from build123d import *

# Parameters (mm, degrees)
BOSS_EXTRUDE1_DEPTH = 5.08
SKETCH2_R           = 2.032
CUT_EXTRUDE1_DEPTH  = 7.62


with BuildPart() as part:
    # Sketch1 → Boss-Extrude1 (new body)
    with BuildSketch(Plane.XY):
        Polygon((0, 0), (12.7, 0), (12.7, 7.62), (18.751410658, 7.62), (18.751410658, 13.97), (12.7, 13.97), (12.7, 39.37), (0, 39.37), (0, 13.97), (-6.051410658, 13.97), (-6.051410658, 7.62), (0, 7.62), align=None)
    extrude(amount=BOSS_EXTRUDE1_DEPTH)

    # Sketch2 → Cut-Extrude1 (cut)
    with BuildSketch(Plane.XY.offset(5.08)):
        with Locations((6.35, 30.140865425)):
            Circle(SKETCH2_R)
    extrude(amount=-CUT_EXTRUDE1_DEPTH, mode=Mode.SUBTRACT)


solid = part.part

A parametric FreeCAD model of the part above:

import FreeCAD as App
import Part
import Sketcher
from FreeCAD import Vector
Q = App.Units.Quantity


def add_polygon(sketch, points):
    """Adds a closed chain of lines whose ends are joined by coincident constraints."""
    first, n = sketch.GeometryCount, len(points)
    for a, b in zip(points, points[1:] + points[:1]):
        sketch.addGeometry(Part.LineSegment(App.Vector(*a, 0), App.Vector(*b, 0)), False)
    for i in range(n):
        sketch.addConstraint(Sketcher.Constraint("Coincident", first + i, 2, first + (i + 1) % n, 1))

doc = App.newDocument("Part")
body = doc.addObject("PartDesign::Body", "Body")

# Sketch on XY plane
sketch1 = body.newObject("Sketcher::SketchObject", "Sketch")
sketch1.AttachmentSupport = (doc.getObject("XY_Plane"), [""])
sketch1.MapMode = "FlatFace"
add_polygon(sketch1, [(0, 0), (13, 0), (13, 8), (19, 8), (19, 14), (13, 14), (13, 39), (0, 39), (0, 14), (-6, 14), (-6, 8), (0, 8)])  # lines 0-11
sketch1.addConstraint([
    Sketcher.Constraint("Horizontal", 0),
    Sketcher.Constraint("Vertical", 1),
    Sketcher.Constraint("Horizontal", 2),
    Sketcher.Constraint("Vertical", 3),
    Sketcher.Constraint("Horizontal", 4),
    Sketcher.Constraint("Vertical", 5),
    Sketcher.Constraint("Horizontal", 6),
    Sketcher.Constraint("Vertical", 7),
    Sketcher.Constraint("Horizontal", 8),
    Sketcher.Constraint("Vertical", 9),
    Sketcher.Constraint("Horizontal", 10),
    Sketcher.Constraint("Vertical", 11),
    Sketcher.Constraint("Coincident", 11, 2, -1, 1),
    Sketcher.Constraint("PointOnObject", 6, 2, -2),
    Sketcher.Constraint("Horizontal", 4, 2, 7, 2),
    Sketcher.Constraint("Horizontal", 2, 2, 9, 2),
    Sketcher.Constraint("Vertical", 1, 2, 4, 2),
    Sketcher.Constraint("Equal", 4, 8),
    Sketcher.Constraint("DistanceY", 5, 1, 5, 2, Q("1 in")),
    Sketcher.Constraint("DistanceX", 0, 1, 0, 2, Q("0.5 in")),
    Sketcher.Constraint("DistanceY", 1, 1, 1, 2, Q("0.3 in")),
    Sketcher.Constraint("DistanceY", 3, 1, 3, 2, Q("0.25 in")),
    Sketcher.Constraint("DistanceX", 2, 1, 2, 2, Q("6.051411 mm")),
])
pad1 = body.newObject("PartDesign::Pad", "Pad")
pad1.Profile = sketch1
pad1.Length = Q("0.2 in")

# Sketch on XY plane
sketch2 = body.newObject("Sketcher::SketchObject", "Sketch001")
sketch2.AttachmentSupport = (doc.getObject("XY_Plane"), [""])
sketch2.MapMode = "FlatFace"
sketch2.AttachmentOffset = App.Placement(Vector(0, 0, 0.2 * 25.4), App.Rotation())
sketch2.addGeometry(Part.Circle(Vector(6.3, 30.1, 0), Vector(0, 0, 1), 2), False)
sketch2.addConstraint([
    Sketcher.Constraint("Diameter", 0, Q("0.16 in")),
    Sketcher.Constraint("DistanceX", -1, 1, 0, 3, Q("0.25 in")),
    Sketcher.Constraint("DistanceY", -1, 1, 0, 3, Q("30.140865 mm")),
])
pocket1 = body.newObject("PartDesign::Pocket", "Pocket")
pocket1.Profile = sketch2
pocket1.Length = Q("0.3 in")

doc.recompute()
